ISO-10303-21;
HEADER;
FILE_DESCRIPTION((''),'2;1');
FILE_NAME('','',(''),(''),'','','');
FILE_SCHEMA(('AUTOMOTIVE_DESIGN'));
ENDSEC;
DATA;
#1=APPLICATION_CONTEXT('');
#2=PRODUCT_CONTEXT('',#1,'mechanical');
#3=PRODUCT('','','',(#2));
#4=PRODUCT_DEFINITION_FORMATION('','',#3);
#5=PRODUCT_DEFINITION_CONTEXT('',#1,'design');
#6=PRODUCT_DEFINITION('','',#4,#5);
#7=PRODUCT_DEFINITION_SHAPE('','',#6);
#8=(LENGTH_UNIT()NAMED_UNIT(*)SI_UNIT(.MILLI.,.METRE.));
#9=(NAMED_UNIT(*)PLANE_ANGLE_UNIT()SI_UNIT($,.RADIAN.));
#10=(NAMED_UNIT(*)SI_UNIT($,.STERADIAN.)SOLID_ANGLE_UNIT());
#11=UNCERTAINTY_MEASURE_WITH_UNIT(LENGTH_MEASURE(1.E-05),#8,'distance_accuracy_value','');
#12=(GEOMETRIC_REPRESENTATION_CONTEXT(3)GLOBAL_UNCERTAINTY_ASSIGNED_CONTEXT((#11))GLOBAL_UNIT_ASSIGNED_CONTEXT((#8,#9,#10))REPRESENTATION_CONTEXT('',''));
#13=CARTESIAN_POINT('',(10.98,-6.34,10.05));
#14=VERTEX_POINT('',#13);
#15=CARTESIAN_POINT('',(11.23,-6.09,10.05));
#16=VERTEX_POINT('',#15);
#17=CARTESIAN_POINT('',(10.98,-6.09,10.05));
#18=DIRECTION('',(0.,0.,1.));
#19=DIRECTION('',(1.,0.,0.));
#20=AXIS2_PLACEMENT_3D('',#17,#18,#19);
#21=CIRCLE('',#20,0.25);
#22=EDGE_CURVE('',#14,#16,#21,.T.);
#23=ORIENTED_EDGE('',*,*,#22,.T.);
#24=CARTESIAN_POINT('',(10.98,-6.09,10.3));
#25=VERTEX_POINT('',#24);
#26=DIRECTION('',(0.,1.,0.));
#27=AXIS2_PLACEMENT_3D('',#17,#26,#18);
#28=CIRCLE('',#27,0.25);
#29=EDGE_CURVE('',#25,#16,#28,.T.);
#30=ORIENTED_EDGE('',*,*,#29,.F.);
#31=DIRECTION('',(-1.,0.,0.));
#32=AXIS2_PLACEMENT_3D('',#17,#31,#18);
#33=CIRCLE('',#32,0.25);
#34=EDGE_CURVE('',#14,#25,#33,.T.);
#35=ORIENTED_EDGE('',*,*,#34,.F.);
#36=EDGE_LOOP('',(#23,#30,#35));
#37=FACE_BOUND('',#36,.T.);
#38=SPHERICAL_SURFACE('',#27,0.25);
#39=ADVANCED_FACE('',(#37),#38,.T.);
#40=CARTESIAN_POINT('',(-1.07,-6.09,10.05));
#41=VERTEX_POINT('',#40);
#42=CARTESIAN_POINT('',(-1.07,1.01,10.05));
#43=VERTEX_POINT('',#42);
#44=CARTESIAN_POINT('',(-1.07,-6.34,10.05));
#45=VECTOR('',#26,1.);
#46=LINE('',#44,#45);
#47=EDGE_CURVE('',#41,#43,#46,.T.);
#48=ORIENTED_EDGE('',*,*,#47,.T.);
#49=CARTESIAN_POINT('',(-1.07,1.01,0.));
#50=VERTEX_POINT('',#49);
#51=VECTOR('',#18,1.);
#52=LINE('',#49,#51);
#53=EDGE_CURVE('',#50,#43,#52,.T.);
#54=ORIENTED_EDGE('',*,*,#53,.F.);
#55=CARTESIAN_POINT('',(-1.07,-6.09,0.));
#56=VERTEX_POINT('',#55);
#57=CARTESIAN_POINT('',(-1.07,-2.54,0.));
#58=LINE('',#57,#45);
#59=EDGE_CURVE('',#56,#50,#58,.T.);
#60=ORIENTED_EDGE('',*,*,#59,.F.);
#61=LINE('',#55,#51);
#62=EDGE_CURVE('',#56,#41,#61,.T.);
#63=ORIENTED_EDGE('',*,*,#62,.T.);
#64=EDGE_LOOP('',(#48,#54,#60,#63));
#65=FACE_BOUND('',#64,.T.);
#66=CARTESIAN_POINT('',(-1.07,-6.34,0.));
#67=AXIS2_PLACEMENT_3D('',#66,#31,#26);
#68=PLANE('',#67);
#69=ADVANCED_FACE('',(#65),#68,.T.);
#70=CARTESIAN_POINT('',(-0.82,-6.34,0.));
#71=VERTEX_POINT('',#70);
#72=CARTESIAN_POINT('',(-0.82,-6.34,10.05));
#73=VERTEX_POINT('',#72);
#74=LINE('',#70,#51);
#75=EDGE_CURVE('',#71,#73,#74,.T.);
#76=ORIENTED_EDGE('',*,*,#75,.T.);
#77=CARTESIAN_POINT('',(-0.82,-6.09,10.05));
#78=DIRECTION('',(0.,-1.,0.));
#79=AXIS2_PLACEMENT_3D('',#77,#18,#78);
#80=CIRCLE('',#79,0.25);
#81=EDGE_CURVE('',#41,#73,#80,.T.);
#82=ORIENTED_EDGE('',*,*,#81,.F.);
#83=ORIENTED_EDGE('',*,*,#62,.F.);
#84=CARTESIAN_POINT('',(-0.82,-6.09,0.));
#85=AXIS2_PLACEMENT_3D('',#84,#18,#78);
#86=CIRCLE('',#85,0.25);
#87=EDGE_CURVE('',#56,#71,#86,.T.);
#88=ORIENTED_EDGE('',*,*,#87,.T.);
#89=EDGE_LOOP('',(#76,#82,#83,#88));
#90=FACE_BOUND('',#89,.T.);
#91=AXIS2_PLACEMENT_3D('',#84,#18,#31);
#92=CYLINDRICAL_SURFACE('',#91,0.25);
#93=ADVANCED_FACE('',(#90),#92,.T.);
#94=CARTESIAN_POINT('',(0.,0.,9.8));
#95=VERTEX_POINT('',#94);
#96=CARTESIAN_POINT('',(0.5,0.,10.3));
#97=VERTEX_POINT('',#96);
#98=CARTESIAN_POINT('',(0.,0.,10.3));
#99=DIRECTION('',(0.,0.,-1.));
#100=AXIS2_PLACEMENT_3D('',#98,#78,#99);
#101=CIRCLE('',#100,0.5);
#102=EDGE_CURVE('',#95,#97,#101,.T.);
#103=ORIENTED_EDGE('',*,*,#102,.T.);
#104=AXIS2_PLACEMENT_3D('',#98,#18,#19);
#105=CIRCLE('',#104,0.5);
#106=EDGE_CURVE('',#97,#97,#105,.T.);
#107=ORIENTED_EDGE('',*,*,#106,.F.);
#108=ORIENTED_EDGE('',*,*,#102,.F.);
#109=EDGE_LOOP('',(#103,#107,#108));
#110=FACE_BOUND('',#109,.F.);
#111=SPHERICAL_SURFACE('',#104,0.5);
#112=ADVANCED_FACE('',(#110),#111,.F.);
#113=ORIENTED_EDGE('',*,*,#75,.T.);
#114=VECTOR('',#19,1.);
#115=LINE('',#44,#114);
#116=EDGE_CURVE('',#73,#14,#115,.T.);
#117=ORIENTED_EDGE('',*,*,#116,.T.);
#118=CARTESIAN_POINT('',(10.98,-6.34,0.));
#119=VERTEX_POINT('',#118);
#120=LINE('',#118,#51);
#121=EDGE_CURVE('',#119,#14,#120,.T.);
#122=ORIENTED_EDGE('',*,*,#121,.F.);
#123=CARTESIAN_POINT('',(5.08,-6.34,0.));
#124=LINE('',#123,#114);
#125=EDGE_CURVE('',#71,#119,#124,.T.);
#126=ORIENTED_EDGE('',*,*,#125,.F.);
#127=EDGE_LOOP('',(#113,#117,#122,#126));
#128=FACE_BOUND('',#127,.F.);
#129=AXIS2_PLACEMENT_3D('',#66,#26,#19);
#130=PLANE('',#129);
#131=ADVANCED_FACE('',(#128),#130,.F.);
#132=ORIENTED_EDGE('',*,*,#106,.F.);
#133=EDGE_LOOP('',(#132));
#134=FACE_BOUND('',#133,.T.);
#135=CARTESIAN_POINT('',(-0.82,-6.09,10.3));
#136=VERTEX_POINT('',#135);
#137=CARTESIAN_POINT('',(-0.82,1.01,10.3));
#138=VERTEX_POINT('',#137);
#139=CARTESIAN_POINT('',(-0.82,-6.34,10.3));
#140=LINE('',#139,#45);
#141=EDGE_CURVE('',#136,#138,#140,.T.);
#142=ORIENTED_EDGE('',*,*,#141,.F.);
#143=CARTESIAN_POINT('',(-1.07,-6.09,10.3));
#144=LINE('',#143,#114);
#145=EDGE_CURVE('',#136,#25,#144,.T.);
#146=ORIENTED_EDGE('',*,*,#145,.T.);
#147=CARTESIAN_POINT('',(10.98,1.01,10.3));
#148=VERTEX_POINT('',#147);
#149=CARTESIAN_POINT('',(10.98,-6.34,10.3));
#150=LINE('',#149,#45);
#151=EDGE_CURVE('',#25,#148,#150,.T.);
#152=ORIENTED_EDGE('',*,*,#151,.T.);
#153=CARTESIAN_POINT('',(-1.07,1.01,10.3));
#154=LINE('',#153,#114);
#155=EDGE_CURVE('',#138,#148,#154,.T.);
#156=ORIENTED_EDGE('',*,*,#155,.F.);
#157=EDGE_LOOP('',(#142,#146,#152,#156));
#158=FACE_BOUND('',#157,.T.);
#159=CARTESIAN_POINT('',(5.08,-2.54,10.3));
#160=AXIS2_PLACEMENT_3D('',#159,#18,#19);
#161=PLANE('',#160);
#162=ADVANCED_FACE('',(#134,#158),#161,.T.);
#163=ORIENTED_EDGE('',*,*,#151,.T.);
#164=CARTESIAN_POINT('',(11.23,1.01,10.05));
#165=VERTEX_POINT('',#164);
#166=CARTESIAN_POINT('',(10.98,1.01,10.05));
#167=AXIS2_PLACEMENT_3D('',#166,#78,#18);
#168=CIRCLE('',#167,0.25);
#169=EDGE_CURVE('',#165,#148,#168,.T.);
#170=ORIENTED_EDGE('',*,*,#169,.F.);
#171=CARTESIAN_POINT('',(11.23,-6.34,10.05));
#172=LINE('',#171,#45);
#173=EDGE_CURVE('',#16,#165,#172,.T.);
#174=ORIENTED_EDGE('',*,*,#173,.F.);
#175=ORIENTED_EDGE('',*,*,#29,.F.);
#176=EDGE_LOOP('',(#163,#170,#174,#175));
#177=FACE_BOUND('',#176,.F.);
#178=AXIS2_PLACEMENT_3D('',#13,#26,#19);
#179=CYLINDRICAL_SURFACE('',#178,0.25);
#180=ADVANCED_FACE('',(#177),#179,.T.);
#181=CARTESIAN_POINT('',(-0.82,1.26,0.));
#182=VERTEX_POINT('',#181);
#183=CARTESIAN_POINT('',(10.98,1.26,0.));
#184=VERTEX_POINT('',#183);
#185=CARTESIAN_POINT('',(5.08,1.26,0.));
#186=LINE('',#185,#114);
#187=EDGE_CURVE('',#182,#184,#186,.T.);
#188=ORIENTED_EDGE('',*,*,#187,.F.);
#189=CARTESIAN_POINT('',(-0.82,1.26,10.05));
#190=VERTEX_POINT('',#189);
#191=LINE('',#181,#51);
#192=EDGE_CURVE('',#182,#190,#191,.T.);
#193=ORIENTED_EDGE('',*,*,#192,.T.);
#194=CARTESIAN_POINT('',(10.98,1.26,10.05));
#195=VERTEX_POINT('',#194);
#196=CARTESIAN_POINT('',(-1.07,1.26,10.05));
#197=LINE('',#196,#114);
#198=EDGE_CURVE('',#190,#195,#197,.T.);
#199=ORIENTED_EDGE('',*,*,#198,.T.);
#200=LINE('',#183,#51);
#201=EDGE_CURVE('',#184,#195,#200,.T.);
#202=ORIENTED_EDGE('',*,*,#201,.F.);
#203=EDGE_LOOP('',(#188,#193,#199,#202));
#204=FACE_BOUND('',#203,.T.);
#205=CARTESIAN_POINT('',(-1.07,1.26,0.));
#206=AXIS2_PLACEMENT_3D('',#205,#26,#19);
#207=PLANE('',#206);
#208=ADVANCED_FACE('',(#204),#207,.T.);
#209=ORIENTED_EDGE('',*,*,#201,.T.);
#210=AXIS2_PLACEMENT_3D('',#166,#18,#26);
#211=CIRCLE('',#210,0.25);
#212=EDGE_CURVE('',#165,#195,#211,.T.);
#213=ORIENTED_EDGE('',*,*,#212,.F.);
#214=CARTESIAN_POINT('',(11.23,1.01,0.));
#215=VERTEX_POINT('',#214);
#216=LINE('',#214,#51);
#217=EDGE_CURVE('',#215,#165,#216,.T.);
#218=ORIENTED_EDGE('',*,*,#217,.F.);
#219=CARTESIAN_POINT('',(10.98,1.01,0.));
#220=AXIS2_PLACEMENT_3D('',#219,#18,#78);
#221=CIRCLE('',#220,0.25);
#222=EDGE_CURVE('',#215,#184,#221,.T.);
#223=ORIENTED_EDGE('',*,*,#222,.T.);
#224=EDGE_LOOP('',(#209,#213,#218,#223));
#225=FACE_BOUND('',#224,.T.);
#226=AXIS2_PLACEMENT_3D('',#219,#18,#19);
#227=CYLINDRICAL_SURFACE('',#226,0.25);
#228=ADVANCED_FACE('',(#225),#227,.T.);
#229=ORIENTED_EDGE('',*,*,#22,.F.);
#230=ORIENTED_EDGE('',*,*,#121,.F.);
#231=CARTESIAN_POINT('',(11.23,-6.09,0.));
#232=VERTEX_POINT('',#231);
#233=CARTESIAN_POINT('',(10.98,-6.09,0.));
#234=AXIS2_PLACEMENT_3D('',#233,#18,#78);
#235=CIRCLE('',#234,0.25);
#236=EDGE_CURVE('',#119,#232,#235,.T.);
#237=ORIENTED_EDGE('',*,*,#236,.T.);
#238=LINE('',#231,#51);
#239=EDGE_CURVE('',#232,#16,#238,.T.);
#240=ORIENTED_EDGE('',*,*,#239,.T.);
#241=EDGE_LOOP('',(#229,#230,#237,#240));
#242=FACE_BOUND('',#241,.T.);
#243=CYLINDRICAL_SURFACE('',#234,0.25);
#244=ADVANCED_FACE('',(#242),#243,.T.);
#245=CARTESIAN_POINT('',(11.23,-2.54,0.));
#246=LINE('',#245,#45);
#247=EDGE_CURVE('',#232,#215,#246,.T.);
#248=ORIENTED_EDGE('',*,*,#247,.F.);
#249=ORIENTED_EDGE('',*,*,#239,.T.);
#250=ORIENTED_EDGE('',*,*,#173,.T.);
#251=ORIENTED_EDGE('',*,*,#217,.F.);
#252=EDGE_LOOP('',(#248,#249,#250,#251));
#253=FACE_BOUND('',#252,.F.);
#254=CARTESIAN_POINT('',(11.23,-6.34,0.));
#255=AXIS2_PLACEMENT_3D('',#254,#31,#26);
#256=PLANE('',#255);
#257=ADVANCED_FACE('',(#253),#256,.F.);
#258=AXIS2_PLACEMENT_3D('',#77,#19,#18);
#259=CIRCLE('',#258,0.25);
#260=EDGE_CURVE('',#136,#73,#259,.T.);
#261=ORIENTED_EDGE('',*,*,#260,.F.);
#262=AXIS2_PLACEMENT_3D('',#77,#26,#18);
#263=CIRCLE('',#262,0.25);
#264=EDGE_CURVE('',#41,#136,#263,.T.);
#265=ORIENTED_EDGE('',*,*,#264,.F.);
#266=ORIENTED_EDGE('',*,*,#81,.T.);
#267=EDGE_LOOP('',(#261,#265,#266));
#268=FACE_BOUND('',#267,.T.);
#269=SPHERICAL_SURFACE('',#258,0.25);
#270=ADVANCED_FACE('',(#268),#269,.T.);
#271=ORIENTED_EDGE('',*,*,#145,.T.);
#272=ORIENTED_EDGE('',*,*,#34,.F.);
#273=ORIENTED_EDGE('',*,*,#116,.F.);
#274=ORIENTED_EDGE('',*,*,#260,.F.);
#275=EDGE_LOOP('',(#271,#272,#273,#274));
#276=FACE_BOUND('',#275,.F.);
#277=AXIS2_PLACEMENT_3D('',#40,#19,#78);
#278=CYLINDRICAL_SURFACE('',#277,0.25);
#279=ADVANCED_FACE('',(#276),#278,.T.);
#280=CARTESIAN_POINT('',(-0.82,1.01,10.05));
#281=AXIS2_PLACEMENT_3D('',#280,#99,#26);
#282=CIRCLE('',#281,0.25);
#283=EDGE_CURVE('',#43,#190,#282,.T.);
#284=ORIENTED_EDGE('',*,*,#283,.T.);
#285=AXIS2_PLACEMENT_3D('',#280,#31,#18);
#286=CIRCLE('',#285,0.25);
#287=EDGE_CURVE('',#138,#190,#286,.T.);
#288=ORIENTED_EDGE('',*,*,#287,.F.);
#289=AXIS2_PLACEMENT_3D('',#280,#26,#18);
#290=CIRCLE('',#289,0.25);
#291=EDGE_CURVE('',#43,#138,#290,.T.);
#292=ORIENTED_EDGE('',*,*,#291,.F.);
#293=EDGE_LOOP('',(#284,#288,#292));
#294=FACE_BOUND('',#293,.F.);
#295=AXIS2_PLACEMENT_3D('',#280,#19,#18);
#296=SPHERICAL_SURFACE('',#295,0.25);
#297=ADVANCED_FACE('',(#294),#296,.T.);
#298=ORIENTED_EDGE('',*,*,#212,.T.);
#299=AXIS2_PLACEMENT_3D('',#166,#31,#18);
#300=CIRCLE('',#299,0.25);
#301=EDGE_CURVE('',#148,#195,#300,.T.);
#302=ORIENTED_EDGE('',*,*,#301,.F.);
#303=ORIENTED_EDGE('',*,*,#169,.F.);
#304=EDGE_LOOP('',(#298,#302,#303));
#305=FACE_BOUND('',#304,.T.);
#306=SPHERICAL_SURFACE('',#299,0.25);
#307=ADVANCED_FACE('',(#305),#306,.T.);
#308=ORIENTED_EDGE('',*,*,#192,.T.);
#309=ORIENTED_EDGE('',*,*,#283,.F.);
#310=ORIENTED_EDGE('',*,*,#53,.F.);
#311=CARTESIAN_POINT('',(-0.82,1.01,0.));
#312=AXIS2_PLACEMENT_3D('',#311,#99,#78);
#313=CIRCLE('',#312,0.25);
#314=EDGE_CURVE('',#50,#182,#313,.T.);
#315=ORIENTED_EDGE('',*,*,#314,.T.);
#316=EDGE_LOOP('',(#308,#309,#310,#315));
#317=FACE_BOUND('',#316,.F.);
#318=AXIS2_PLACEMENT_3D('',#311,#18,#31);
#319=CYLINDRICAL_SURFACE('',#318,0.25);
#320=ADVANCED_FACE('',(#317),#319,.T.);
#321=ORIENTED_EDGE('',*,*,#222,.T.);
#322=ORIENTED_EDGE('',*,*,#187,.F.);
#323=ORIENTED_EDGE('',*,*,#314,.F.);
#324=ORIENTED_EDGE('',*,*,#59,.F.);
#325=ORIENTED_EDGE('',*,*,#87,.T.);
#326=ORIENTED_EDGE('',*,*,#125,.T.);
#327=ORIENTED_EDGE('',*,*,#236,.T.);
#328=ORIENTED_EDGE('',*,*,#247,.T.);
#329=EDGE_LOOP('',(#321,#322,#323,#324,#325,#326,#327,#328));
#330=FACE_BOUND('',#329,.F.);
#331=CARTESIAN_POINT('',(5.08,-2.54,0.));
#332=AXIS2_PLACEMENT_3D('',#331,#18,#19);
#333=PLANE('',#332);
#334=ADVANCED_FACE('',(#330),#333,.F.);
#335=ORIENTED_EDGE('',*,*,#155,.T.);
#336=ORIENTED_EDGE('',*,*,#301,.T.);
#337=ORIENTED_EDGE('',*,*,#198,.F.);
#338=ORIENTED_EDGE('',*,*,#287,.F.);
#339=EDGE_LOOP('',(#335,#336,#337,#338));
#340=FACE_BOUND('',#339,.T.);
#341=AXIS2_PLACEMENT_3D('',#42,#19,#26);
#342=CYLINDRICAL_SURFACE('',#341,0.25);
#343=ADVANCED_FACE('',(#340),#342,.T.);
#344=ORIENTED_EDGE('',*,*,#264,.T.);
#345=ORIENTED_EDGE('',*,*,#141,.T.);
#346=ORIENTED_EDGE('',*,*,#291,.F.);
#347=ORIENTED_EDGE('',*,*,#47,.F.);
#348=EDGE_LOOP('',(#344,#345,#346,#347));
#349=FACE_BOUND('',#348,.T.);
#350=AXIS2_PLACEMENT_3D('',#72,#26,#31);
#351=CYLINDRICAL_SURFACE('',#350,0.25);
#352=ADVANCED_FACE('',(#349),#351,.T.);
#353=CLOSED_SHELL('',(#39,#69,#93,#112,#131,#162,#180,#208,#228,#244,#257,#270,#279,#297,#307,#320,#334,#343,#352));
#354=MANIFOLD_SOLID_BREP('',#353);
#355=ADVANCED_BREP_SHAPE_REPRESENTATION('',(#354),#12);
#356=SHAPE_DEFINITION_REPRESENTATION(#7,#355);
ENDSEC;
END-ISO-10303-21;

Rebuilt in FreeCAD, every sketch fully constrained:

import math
import FreeCAD as App
import Part
import Sketcher

V = App.Vector


def edges_at(feature, points):
    """Names of the edges that pass closest to the given points."""
    edges = feature.Shape.Edges
    near = lambda p: min(range(len(edges)), key=lambda i: edges[i].distToShape(Part.Vertex(*p))[0])
    return sorted({f"Edge{near(p) + 1}" for p in points})


def add_polygon(sketch, points):
    """Adds a closed chain of lines whose ends are joined by coincident constraints."""
    first, n = sketch.GeometryCount, len(points)
    for a, b in zip(points, points[1:] + points[:1]):
        sketch.addGeometry(Part.LineSegment(App.Vector(*a, 0), App.Vector(*b, 0)), False)
    for i in range(n):
        sketch.addConstraint(Sketcher.Constraint("Coincident", first + i, 2, first + (i + 1) % n, 1))

doc = App.newDocument("Part")
body = doc.addObject("PartDesign::Body", "Body")

# Sketch on XY plane
sketch1 = doc.addObject("Sketcher::SketchObject", "Sketch")
body.addObject(sketch1)
sketch1.AttachmentSupport = (doc.XY_Plane, [""])
sketch1.MapMode = "FlatFace"
add_polygon(sketch1, [(-1, 1), (-1, -6), (11, -6), (11, 1)])  # lines 0-3
sketch1.addConstraint(Sketcher.Constraint("Vertical", 0))
sketch1.addConstraint(Sketcher.Constraint("Horizontal", 1))
sketch1.addConstraint(Sketcher.Constraint("Vertical", 2))
sketch1.addConstraint(Sketcher.Constraint("Horizontal", 3))
sketch1.addConstraint(Sketcher.Constraint("DistanceX", 1, 1, 1, 2, 12.3))
sketch1.addConstraint(Sketcher.Constraint("DistanceY", 0, 2, 0, 1, 7.6))
sketch1.addConstraint(Sketcher.Constraint("DistanceX", 0, 2, -1, 1, 1.07))
sketch1.addConstraint(Sketcher.Constraint("DistanceY", 0, 2, -1, 1, 6.34))
pad1 = doc.addObject("PartDesign::Pad", "Pad")
body.addObject(pad1)
pad1.Profile = sketch1
pad1.Length = 10.3
doc.recompute()

fillet = doc.addObject("PartDesign::Fillet", "Fillet")
body.addObject(fillet)
fillet.Base = (pad1, edges_at(pad1, [
    (5.08, 1.26, 10.3),
    (11.23, -2.54, 10.3),
    (5.08, -6.34, 10.3),
    (-1.07, -2.54, 10.3),
    (11.23, 1.26, 5.15),
    (-1.07, 1.26, 5.15),
    (11.23, -6.34, 5.15),
    (-1.07, -6.34, 5.15),
]))
fillet.Radius = 0.25

# Sketch on XZ plane
sketch2 = doc.addObject("Sketcher::SketchObject", "Sketch001")
body.addObject(sketch2)
sketch2.AttachmentSupport = (doc.XZ_Plane, [""])
sketch2.MapMode = "FlatFace"
sketch2.addGeometry(Part.ArcOfCircle(Part.Circle(V(0, 10.3, 0), V(0, 0, 1), 0.5), math.radians(-90), math.radians(90)), False)
sketch2.addGeometry(Part.LineSegment(V(0, 10.8, 0), V(0, 9.8, 0)), False)
sketch2.addConstraint(Sketcher.Constraint("Coincident", 0, 1, 1, 2))
sketch2.addConstraint(Sketcher.Constraint("Coincident", 1, 1, 0, 2))
sketch2.addConstraint(Sketcher.Constraint("Vertical", 1))
sketch2.addConstraint(Sketcher.Constraint("PointOnObject", 0, 3, -2))
sketch2.addConstraint(Sketcher.Constraint("PointOnObject", 0, 1, -2))
sketch2.addConstraint(Sketcher.Constraint("Radius", 0, 0.5))
sketch2.addConstraint(Sketcher.Constraint("DistanceY", -1, 1, 0, 3, 10.3))
groove = doc.addObject("PartDesign::Groove", "Groove")
body.addObject(groove)
groove.Profile = sketch2
groove.ReferenceAxis = (sketch2, ["V_Axis"])
groove.Angle = 360

doc.recompute()
